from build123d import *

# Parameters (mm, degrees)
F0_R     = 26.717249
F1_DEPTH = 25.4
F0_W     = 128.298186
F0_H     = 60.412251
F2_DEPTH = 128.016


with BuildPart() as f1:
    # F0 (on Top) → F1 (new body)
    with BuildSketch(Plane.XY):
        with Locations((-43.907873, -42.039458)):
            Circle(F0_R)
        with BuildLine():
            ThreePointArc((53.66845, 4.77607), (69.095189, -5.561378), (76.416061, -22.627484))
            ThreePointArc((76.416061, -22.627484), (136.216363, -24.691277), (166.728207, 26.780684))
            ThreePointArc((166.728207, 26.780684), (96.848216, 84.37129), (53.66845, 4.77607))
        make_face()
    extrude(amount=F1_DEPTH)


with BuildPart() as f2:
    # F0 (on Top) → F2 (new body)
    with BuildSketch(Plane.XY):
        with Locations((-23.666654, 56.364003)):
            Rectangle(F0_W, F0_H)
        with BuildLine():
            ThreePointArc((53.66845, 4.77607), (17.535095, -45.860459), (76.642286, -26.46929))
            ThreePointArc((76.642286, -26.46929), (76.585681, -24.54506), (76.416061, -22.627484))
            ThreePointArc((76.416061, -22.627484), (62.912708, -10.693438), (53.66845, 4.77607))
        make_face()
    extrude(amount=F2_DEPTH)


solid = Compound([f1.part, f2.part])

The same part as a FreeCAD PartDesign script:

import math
import FreeCAD as App
import Part
import Sketcher
Q = App.Units.Quantity

doc = App.newDocument("Part")
body = doc.addObject("PartDesign::Body", "Body")
body.AllowCompound = True

sketch1 = body.newObject("Sketcher::SketchObject", "Sketch")
sketch1.AttachmentSupport = (doc.getObject("XY_Plane"), [""])
sketch1.MapMode = "FlatFace"
sketch1.addGeometry([
    Part.Circle(App.Vector(-44, -42, 0), App.Vector(0, 0, 1), 27),
    Part.ArcOfCircle(Part.Circle(App.Vector(44, -26, 0), App.Vector(0, 0, 1), 33), math.radians(7), math.radians(73)),
    Part.ArcOfCircle(Part.Circle(App.Vector(108, 27, 0), App.Vector(0, 0, 1), 59), math.radians(-123), math.radians(0)),
    Part.ArcOfCircle(Part.Circle(App.Vector(108, 27, 0), App.Vector(0, 0, 1), 59), math.radians(0), math.radians(202)),
], False)
sketch1.addConstraint([
    Sketcher.Constraint("Coincident", 1, 1, 2, 1),
    Sketcher.Constraint("Tangent", 2, 2, 3, 1),
    Sketcher.Constraint("Coincident", 3, 2, 1, 2),
    Sketcher.Constraint("Equal", 2, 3),
    Sketcher.Constraint("Horizontal", 3, 3, 2, 2),
    Sketcher.Constraint("Radius", 1, 32.734402),
    Sketcher.Constraint("Diameter", 0, 53.434498),
    Sketcher.Constraint("Radius", 2, 58.671237),
    Sketcher.Constraint("DistanceY", 0, 3, -1, 1, 42.039458),
    Sketcher.Constraint("DistanceY", 1, 3, -1, 1, 26.469288),
    Sketcher.Constraint("DistanceX", -1, 1, 2, 3, 108.05697),
    Sketcher.Constraint("DistanceX", -1, 1, 1, 1, 76.416061),
    Sketcher.Constraint("DistanceX", -1, 1, 3, 2, 53.66845),
    Sketcher.Constraint("DistanceX", 0, 3, 2, 2, 210.63608),
])
pad1 = body.newObject("PartDesign::Pad", "Pad")
pad1.Profile = sketch1
pad1.Length = Q("1 in")
body2 = doc.addObject("PartDesign::Body", "Body001")
body2.AllowCompound = True

sketch2 = body2.newObject("Sketcher::SketchObject", "Sketch001")
sketch2.AttachmentSupport = (doc.getObject("XY_Plane001"), [""])
sketch2.MapMode = "FlatFace"
sketch2.addGeometry([
    Part.LineSegment(App.Vector(-87.8, 86.6, 0), App.Vector(-87.8, 26.2, 0)),
    Part.LineSegment(App.Vector(-87.8, 26.2, 0), App.Vector(40.5, 26.2, 0)),
    Part.LineSegment(App.Vector(40.5, 26.2, 0), App.Vector(40.5, 86.6, 0)),
    Part.LineSegment(App.Vector(40.5, 86.6, 0), App.Vector(-87.8, 86.6, 0)),
    Part.ArcOfCircle(Part.Circle(App.Vector(43.9, -26.5, 0), App.Vector(0, 0, 1), 32.7), math.radians(73), math.radians(360)),
    Part.ArcOfCircle(Part.Circle(App.Vector(43.9, -26.5, 0), App.Vector(0, 0, 1), 32.7), math.radians(0), math.radians(6.74)),
    Part.ArcOfCircle(Part.Circle(App.Vector(108.1, 26.8, 0), App.Vector(0, 0, 1), 58.7), math.radians(-158), math.radians(-123)),
], False)
sketch2.addConstraint([
    Sketcher.Constraint("Coincident", 0, 2, 1, 1),
    Sketcher.Constraint("Coincident", 1, 2, 2, 1),
    Sketcher.Constraint("Coincident", 2, 2, 3, 1),
    Sketcher.Constraint("Coincident", 3, 2, 0, 1),
    Sketcher.Constraint("Tangent", 4, 2, 5, 1),
    Sketcher.Constraint("Coincident", 5, 2, 6, 2),
    Sketcher.Constraint("Coincident", 6, 1, 4, 1),
    Sketcher.Constraint("Vertical", 0),
    Sketcher.Constraint("Horizontal", 1),
    Sketcher.Constraint("Vertical", 2),
    Sketcher.Constraint("Horizontal", 3),
    Sketcher.Constraint("Radius", 6, 58.67123),
    Sketcher.Constraint("Radius", 4, 32.734405),
    Sketcher.Constraint("Radius", 5, 32.734242),
    Sketcher.Constraint("DistanceY", 0, 2, 0, 1, 60.412251),
    Sketcher.Constraint("DistanceY", 0, 2, 6, 3, 0.622801),
    Sketcher.Constraint("DistanceY", 5, 3, 5, 2, 3.8418),
    Sketcher.Constraint("DistanceX", 1, 1, 1, 2, 128.298186),
    Sketcher.Constraint("DistanceX", -1, 1, 4, 3, 43.907881),
    Sketcher.Constraint("DistanceY", 4, 3, -1, 1, 26.469291),
    Sketcher.Constraint("DistanceY", -1, 1, 6, 3, 26.780678),
    Sketcher.Constraint("DistanceX", -1, 1, 1, 2, 40.482439),
    Sketcher.Constraint("DistanceY", 4, 2, -1, 1, 26.46929),
])
pad2 = body2.newObject("PartDesign::Pad", "Pad001")
pad2.Profile = sketch2
pad2.Length = Q("5.04 in")

doc.recompute()
